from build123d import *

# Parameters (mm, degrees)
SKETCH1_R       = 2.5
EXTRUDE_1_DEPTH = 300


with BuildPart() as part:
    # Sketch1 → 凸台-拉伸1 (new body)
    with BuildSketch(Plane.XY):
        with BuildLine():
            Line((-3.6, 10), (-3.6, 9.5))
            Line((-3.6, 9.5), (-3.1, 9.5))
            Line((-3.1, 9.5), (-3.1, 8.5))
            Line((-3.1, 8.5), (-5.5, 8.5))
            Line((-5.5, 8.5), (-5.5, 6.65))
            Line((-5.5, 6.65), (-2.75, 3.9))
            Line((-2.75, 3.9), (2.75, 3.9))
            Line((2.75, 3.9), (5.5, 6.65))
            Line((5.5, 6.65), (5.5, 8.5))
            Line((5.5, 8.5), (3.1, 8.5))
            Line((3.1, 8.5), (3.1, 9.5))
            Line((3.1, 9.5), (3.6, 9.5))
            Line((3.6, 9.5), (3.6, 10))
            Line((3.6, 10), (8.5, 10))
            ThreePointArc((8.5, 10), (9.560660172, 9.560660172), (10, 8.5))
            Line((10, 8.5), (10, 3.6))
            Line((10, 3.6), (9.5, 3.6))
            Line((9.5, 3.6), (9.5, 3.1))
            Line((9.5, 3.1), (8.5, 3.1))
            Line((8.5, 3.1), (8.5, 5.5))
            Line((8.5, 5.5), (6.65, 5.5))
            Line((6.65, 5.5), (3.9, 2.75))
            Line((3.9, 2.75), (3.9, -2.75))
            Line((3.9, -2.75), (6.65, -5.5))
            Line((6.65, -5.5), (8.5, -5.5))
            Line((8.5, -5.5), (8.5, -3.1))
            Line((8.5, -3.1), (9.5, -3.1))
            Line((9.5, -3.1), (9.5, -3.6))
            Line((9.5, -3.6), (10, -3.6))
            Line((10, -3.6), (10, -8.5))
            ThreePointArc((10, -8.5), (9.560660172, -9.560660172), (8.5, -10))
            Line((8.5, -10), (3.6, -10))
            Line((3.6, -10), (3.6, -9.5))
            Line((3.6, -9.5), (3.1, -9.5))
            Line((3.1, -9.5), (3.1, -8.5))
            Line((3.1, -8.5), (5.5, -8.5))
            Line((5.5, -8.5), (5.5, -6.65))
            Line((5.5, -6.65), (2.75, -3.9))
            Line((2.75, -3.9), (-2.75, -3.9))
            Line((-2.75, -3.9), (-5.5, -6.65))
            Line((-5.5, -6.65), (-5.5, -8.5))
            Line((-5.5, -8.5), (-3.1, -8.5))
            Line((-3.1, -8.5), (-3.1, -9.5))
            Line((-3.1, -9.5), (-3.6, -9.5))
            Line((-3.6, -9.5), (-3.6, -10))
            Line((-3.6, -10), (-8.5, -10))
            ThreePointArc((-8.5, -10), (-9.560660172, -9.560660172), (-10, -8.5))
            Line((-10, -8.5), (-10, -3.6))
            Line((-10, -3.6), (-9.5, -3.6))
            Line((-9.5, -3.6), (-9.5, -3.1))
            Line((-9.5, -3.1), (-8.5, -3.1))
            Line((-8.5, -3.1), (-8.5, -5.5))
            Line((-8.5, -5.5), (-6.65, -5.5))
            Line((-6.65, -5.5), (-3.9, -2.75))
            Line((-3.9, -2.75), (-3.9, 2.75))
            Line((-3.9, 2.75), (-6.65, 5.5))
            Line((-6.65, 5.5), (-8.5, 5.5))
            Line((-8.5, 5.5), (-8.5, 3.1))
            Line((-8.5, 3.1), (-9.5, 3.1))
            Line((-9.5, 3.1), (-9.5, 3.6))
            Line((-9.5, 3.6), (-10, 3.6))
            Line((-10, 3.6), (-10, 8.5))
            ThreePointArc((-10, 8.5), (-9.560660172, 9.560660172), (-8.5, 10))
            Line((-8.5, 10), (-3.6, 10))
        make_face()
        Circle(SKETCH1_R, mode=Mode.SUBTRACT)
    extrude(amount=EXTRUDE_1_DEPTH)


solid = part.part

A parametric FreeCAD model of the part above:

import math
import FreeCAD as App
import Part
import Sketcher

V = App.Vector

doc = App.newDocument("Part")
body = doc.addObject("PartDesign::Body", "Body")

sketch1 = body.newObject("Sketcher::SketchObject", "Sketch")
sketch1.AttachmentSupport = (doc.getObject("XY_Plane"), [""])
sketch1.MapMode = "FlatFace"
sketch1.addGeometry(Part.LineSegment(V(-3.6, 9.5, 0), V(-3.6, 10, 0)), False)
sketch1.addGeometry(Part.LineSegment(V(-3.6, 10, 0), V(-8.5, 10, 0)), False)
sketch1.addGeometry(Part.ArcOfCircle(Part.Circle(V(-8.5, 8.5, 0), V(0, 0, 1), 1.5), math.radians(90), math.radians(180)), False)
sketch1.addGeometry(Part.LineSegment(V(-10, 8.5, 0), V(-10, 3.6, 0)), False)
sketch1.addGeometry(Part.LineSegment(V(-10, 3.6, 0), V(-9.5, 3.6, 0)), False)
sketch1.addGeometry(Part.LineSegment(V(-9.5, 3.6, 0), V(-9.5, 3.1, 0)), False)
sketch1.addGeometry(Part.LineSegment(V(-9.5, 3.1, 0), V(-8.5, 3.1, 0)), False)
sketch1.addGeometry(Part.LineSegment(V(-8.5, 3.1, 0), V(-8.5, 5.5, 0)), False)
sketch1.addGeometry(Part.LineSegment(V(-8.5, 5.5, 0), V(-6.7, 5.5, 0)), False)
sketch1.addGeometry(Part.LineSegment(V(-6.7, 5.5, 0), V(-3.9, 2.8, 0)), False)
sketch1.addGeometry(Part.LineSegment(V(-3.9, 2.8, 0), V(-3.9, -2.8, 0)), False)
sketch1.addGeometry(Part.LineSegment(V(-3.9, -2.8, 0), V(-6.7, -5.5, 0)), False)
sketch1.addGeometry(Part.LineSegment(V(-6.7, -5.5, 0), V(-8.5, -5.5, 0)), False)
sketch1.addGeometry(Part.LineSegment(V(-8.5, -5.5, 0), V(-8.5, -3.1, 0)), False)
sketch1.addGeometry(Part.LineSegment(V(-8.5, -3.1, 0), V(-9.5, -3.1, 0)), False)
sketch1.addGeometry(Part.LineSegment(V(-9.5, -3.1, 0), V(-9.5, -3.6, 0)), False)
sketch1.addGeometry(Part.LineSegment(V(-9.5, -3.6, 0), V(-10, -3.6, 0)), False)
sketch1.addGeometry(Part.LineSegment(V(-10, -3.6, 0), V(-10, -8.5, 0)), False)
sketch1.addGeometry(Part.ArcOfCircle(Part.Circle(V(-8.5, -8.5, 0), V(0, 0, 1), 1.5), math.radians(180), math.radians(270)), False)
sketch1.addGeometry(Part.LineSegment(V(-8.5, -10, 0), V(-3.6, -10, 0)), False)
sketch1.addGeometry(Part.LineSegment(V(-3.6, -10, 0), V(-3.6, -9.5, 0)), False)
sketch1.addGeometry(Part.LineSegment(V(-3.6, -9.5, 0), V(-3.1, -9.5, 0)), False)
sketch1.addGeometry(Part.LineSegment(V(-3.1, -9.5, 0), V(-3.1, -8.5, 0)), False)
sketch1.addGeometry(Part.LineSegment(V(-3.1, -8.5, 0), V(-5.5, -8.5, 0)), False)
sketch1.addGeometry(Part.LineSegment(V(-5.5, -8.5, 0), V(-5.5, -6.7, 0)), False)
sketch1.addGeometry(Part.LineSegment(V(-5.5, -6.7, 0), V(-2.8, -3.9, 0)), False)
sketch1.addGeometry(Part.LineSegment(V(-2.8, -3.9, 0), V(2.8, -3.9, 0)), False)
sketch1.addGeometry(Part.LineSegment(V(2.8, -3.9, 0), V(5.5, -6.7, 0)), False)
sketch1.addGeometry(Part.LineSegment(V(5.5, -6.7, 0), V(5.5, -8.5, 0)), False)
sketch1.addGeometry(Part.LineSegment(V(5.5, -8.5, 0), V(3.1, -8.5, 0)), False)
sketch1.addGeometry(Part.LineSegment(V(3.1, -8.5, 0), V(3.1, -9.5, 0)), False)
sketch1.addGeometry(Part.LineSegment(V(3.1, -9.5, 0), V(3.6, -9.5, 0)), False)
sketch1.addGeometry(Part.LineSegment(V(3.6, -9.5, 0), V(3.6, -10, 0)), False)
sketch1.addGeometry(Part.LineSegment(V(3.6, -10, 0), V(8.5, -10, 0)), False)
sketch1.addGeometry(Part.ArcOfCircle(Part.Circle(V(8.5, -8.5, 0), V(0, 0, 1), 1.5), math.radians(-90), math.radians(0)), False)
sketch1.addGeometry(Part.LineSegment(V(10, -8.5, 0), V(10, -3.6, 0)), False)
sketch1.addGeometry(Part.LineSegment(V(10, -3.6, 0), V(9.5, -3.6, 0)), False)
sketch1.addGeometry(Part.LineSegment(V(9.5, -3.6, 0), V(9.5, -3.1, 0)), False)
sketch1.addGeometry(Part.LineSegment(V(9.5, -3.1, 0), V(8.5, -3.1, 0)), False)
sketch1.addGeometry(Part.LineSegment(V(8.5, -3.1, 0), V(8.5, -5.5, 0)), False)
sketch1.addGeometry(Part.LineSegment(V(8.5, -5.5, 0), V(6.7, -5.5, 0)), False)
sketch1.addGeometry(Part.LineSegment(V(6.7, -5.5, 0), V(3.9, -2.8, 0)), False)
sketch1.addGeometry(Part.LineSegment(V(3.9, -2.8, 0), V(3.9, 2.8, 0)), False)
sketch1.addGeometry(Part.LineSegment(V(3.9, 2.8, 0), V(6.7, 5.5, 0)), False)
sketch1.addGeometry(Part.LineSegment(V(6.7, 5.5, 0), V(8.5, 5.5, 0)), False)
sketch1.addGeometry(Part.LineSegment(V(8.5, 5.5, 0), V(8.5, 3.1, 0)), False)
sketch1.addGeometry(Part.LineSegment(V(8.5, 3.1, 0), V(9.5, 3.1, 0)), False)
sketch1.addGeometry(Part.LineSegment(V(9.5, 3.1, 0), V(9.5, 3.6, 0)), False)
sketch1.addGeometry(Part.LineSegment(V(9.5, 3.6, 0), V(10, 3.6, 0)), False)
sketch1.addGeometry(Part.LineSegment(V(10, 3.6, 0), V(10, 8.5, 0)), False)
sketch1.addGeometry(Part.ArcOfCircle(Part.Circle(V(8.5, 8.5, 0), V(0, 0, 1), 1.5), math.radians(0), math.radians(90)), False)
sketch1.addGeometry(Part.LineSegment(V(8.5, 10, 0), V(3.6, 10, 0)), False)
sketch1.addGeometry(Part.LineSegment(V(3.6, 10, 0), V(3.6, 9.5, 0)), False)
sketch1.addGeometry(Part.LineSegment(V(3.6, 9.5, 0), V(3.1, 9.5, 0)), False)
sketch1.addGeometry(Part.LineSegment(V(3.1, 9.5, 0), V(3.1, 8.5, 0)), False)
sketch1.addGeometry(Part.LineSegment(V(3.1, 8.5, 0), V(5.5, 8.5, 0)), False)
sketch1.addGeometry(Part.LineSegment(V(5.5, 8.5, 0), V(5.5, 6.7, 0)), False)
sketch1.addGeometry(Part.LineSegment(V(5.5, 6.7, 0), V(2.8, 3.9, 0)), False)
sketch1.addGeometry(Part.LineSegment(V(2.8, 3.9, 0), V(-2.8, 3.9, 0)), False)
sketch1.addGeometry(Part.LineSegment(V(-2.8, 3.9, 0), V(-5.5, 6.7, 0)), False)
sketch1.addGeometry(Part.LineSegment(V(-5.5, 6.7, 0), V(-5.5, 8.5, 0)), False)
sketch1.addGeometry(Part.LineSegment(V(-5.5, 8.5, 0), V(-3.1, 8.5, 0)), False)
sketch1.addGeometry(Part.LineSegment(V(-3.1, 8.5, 0), V(-3.1, 9.5, 0)), False)
sketch1.addGeometry(Part.LineSegment(V(-3.1, 9.5, 0), V(-3.6, 9.5, 0)), False)
sketch1.addGeometry(Part.Circle(V(0, 0, 0), V(0, 0, 1), 2.5), False)
sketch1.addConstraint(Sketcher.Constraint("Coincident", 0, 2, 1, 1))
sketch1.addConstraint(Sketcher.Constraint("Tangent", 1, 2, 2, 1))
sketch1.addConstraint(Sketcher.Constraint("Tangent", 2, 2, 3, 1))
sketch1.addConstraint(Sketcher.Constraint("Coincident", 3, 2, 4, 1))
sketch1.addConstraint(Sketcher.Constraint("Coincident", 4, 2, 5, 1))
sketch1.addConstraint(Sketcher.Constraint("Coincident", 5, 2, 6, 1))
sketch1.addConstraint(Sketcher.Constraint("Coincident", 6, 2, 7, 1))
sketch1.addConstraint(Sketcher.Constraint("Coincident", 7, 2, 8, 1))
sketch1.addConstraint(Sketcher.Constraint("Coincident", 8, 2, 9, 1))
sketch1.addConstraint(Sketcher.Constraint("Coincident", 9, 2, 10, 1))
sketch1.addConstraint(Sketcher.Constraint("Coincident", 10, 2, 11, 1))
sketch1.addConstraint(Sketcher.Constraint("Coincident", 11, 2, 12, 1))
sketch1.addConstraint(Sketcher.Constraint("Coincident", 12, 2, 13, 1))
sketch1.addConstraint(Sketcher.Constraint("Coincident", 13, 2, 14, 1))
sketch1.addConstraint(Sketcher.Constraint("Coincident", 14, 2, 15, 1))
sketch1.addConstraint(Sketcher.Constraint("Coincident", 15, 2, 16, 1))
sketch1.addConstraint(Sketcher.Constraint("Coincident", 16, 2, 17, 1))
sketch1.addConstraint(Sketcher.Constraint("Tangent", 17, 2, 18, 1))
sketch1.addConstraint(Sketcher.Constraint("Tangent", 18, 2, 19, 1))
sketch1.addConstraint(Sketcher.Constraint("Coincident", 19, 2, 20, 1))
sketch1.addConstraint(Sketcher.Constraint("Coincident", 20, 2, 21, 1))
sketch1.addConstraint(Sketcher.Constraint("Coincident", 21, 2, 22, 1))
sketch1.addConstraint(Sketcher.Constraint("Coincident", 22, 2, 23, 1))
sketch1.addConstraint(Sketcher.Constraint("Coincident", 23, 2, 24, 1))
sketch1.addConstraint(Sketcher.Constraint("Coincident", 24, 2, 25, 1))
sketch1.addConstraint(Sketcher.Constraint("Coincident", 25, 2, 26, 1))
sketch1.addConstraint(Sketcher.Constraint("Coincident", 26, 2, 27, 1))
sketch1.addConstraint(Sketcher.Constraint("Coincident", 27, 2, 28, 1))
sketch1.addConstraint(Sketcher.Constraint("Coincident", 28, 2, 29, 1))
sketch1.addConstraint(Sketcher.Constraint("Coincident", 29, 2, 30, 1))
sketch1.addConstraint(Sketcher.Constraint("Coincident", 30, 2, 31, 1))
sketch1.addConstraint(Sketcher.Constraint("Coincident", 31, 2, 32, 1))
sketch1.addConstraint(Sketcher.Constraint("Coincident", 32, 2, 33, 1))
sketch1.addConstraint(Sketcher.Constraint("Tangent", 33, 2, 34, 1))
sketch1.addConstraint(Sketcher.Constraint("Tangent", 34, 2, 35, 1))
sketch1.addConstraint(Sketcher.Constraint("Coincident", 35, 2, 36, 1))
sketch1.addConstraint(Sketcher.Constraint("Coincident", 36, 2, 37, 1))
sketch1.addConstraint(Sketcher.Constraint("Coincident", 37, 2, 38, 1))
sketch1.addConstraint(Sketcher.Constraint("Coincident", 38, 2, 39, 1))
sketch1.addConstraint(Sketcher.Constraint("Coincident", 39, 2, 40, 1))
sketch1.addConstraint(Sketcher.Constraint("Coincident", 40, 2, 41, 1))
sketch1.addConstraint(Sketcher.Constraint("Coincident", 41, 2, 42, 1))
sketch1.addConstraint(Sketcher.Constraint("Coincident", 42, 2, 43, 1))
sketch1.addConstraint(Sketcher.Constraint("Coincident", 43, 2, 44, 1))
sketch1.addConstraint(Sketcher.Constraint("Coincident", 44, 2, 45, 1))
sketch1.addConstraint(Sketcher.Constraint("Coincident", 45, 2, 46, 1))
sketch1.addConstraint(Sketcher.Constraint("Coincident", 46, 2, 47, 1))
sketch1.addConstraint(Sketcher.Constraint("Coincident", 47, 2, 48, 1))
sketch1.addConstraint(Sketcher.Constraint("Coincident", 48, 2, 49, 1))
sketch1.addConstraint(Sketcher.Constraint("Tangent", 49, 2, 50, 1))
sketch1.addConstraint(Sketcher.Constraint("Tangent", 50, 2, 51, 1))
sketch1.addConstraint(Sketcher.Constraint("Coincident", 51, 2, 52, 1))
sketch1.addConstraint(Sketcher.Constraint("Coincident", 52, 2, 53, 1))
sketch1.addConstraint(Sketcher.Constraint("Coincident", 53, 2, 54, 1))
sketch1.addConstraint(Sketcher.Constraint("Coincident", 54, 2, 55, 1))
sketch1.addConstraint(Sketcher.Constraint("Coincident", 55, 2, 56, 1))
sketch1.addConstraint(Sketcher.Constraint("Coincident", 56, 2, 57, 1))
sketch1.addConstraint(Sketcher.Constraint("Coincident", 57, 2, 58, 1))
sketch1.addConstraint(Sketcher.Constraint("Coincident", 58, 2, 59, 1))
sketch1.addConstraint(Sketcher.Constraint("Coincident", 59, 2, 60, 1))
sketch1.addConstraint(Sketcher.Constraint("Coincident", 60, 2, 61, 1))
sketch1.addConstraint(Sketcher.Constraint("Coincident", 61, 2, 62, 1))
sketch1.addConstraint(Sketcher.Constraint("Coincident", 62, 2, 63, 1))
sketch1.addConstraint(Sketcher.Constraint("Coincident", 63, 2, 0, 1))
sketch1.addConstraint(Sketcher.Constraint("Vertical", 0))
sketch1.addConstraint(Sketcher.Constraint("Horizontal", 1))
sketch1.addConstraint(Sketcher.Constraint("Vertical", 3))
sketch1.addConstraint(Sketcher.Constraint("Horizontal", 4))
sketch1.addConstraint(Sketcher.Constraint("Vertical", 5))
sketch1.addConstraint(Sketcher.Constraint("Horizontal", 6))
sketch1.addConstraint(Sketcher.Constraint("Vertical", 7))
sketch1.addConstraint(Sketcher.Constraint("Horizontal", 8))
sketch1.addConstraint(Sketcher.Constraint("Vertical", 10))
sketch1.addConstraint(Sketcher.Constraint("Horizontal", 12))
sketch1.addConstraint(Sketcher.Constraint("Vertical", 13))
sketch1.addConstraint(Sketcher.Constraint("Horizontal", 14))
sketch1.addConstraint(Sketcher.Constraint("Vertical", 15))
sketch1.addConstraint(Sketcher.Constraint("Horizontal", 16))
sketch1.addConstraint(Sketcher.Constraint("Vertical", 17))
sketch1.addConstraint(Sketcher.Constraint("Horizontal", 19))
sketch1.addConstraint(Sketcher.Constraint("Vertical", 20))
sketch1.addConstraint(Sketcher.Constraint("Horizontal", 21))
sketch1.addConstraint(Sketcher.Constraint("Vertical", 22))
sketch1.addConstraint(Sketcher.Constraint("Horizontal", 23))
sketch1.addConstraint(Sketcher.Constraint("Vertical", 24))
sketch1.addConstraint(Sketcher.Constraint("Horizontal", 26))
sketch1.addConstraint(Sketcher.Constraint("Vertical", 28))
sketch1.addConstraint(Sketcher.Constraint("Horizontal", 29))
sketch1.addConstraint(Sketcher.Constraint("Vertical", 30))
sketch1.addConstraint(Sketcher.Constraint("Horizontal", 31))
sketch1.addConstraint(Sketcher.Constraint("Vertical", 32))
sketch1.addConstraint(Sketcher.Constraint("Horizontal", 33))
sketch1.addConstraint(Sketcher.Constraint("Vertical", 35))
sketch1.addConstraint(Sketcher.Constraint("Horizontal", 36))
sketch1.addConstraint(Sketcher.Constraint("Vertical", 37))
sketch1.addConstraint(Sketcher.Constraint("Horizontal", 38))
sketch1.addConstraint(Sketcher.Constraint("Vertical", 39))
sketch1.addConstraint(Sketcher.Constraint("Horizontal", 40))
sketch1.addConstraint(Sketcher.Constraint("Vertical", 42))
sketch1.addConstraint(Sketcher.Constraint("Horizontal", 44))
sketch1.addConstraint(Sketcher.Constraint("Vertical", 45))
sketch1.addConstraint(Sketcher.Constraint("Horizontal", 46))
sketch1.addConstraint(Sketcher.Constraint("Vertical", 47))
sketch1.addConstraint(Sketcher.Constraint("Horizontal", 48))
sketch1.addConstraint(Sketcher.Constraint("Vertical", 49))
sketch1.addConstraint(Sketcher.Constraint("Horizontal", 51))
sketch1.addConstraint(Sketcher.Constraint("Vertical", 52))
sketch1.addConstraint(Sketcher.Constraint("Horizontal", 53))
sketch1.addConstraint(Sketcher.Constraint("Vertical", 54))
sketch1.addConstraint(Sketcher.Constraint("Horizontal", 55))
sketch1.addConstraint(Sketcher.Constraint("Vertical", 56))
sketch1.addConstraint(Sketcher.Constraint("Horizontal", 58))
sketch1.addConstraint(Sketcher.Constraint("Vertical", 60))
sketch1.addConstraint(Sketcher.Constraint("Horizontal", 61))
sketch1.addConstraint(Sketcher.Constraint("Vertical", 62))
sketch1.addConstraint(Sketcher.Constraint("Horizontal", 63))
sketch1.addConstraint(Sketcher.Constraint("Coincident", 64, 3, -1, 1))
sketch1.addConstraint(Sketcher.Constraint("Equal", 2, 18))
sketch1.addConstraint(Sketcher.Constraint("Equal", 18, 34))
sketch1.addConstraint(Sketcher.Constraint("Equal", 34, 50))
sketch1.addConstraint(Sketcher.Constraint("Symmetric", 2, 3, 34, 3, -1, 1))
sketch1.addConstraint(Sketcher.Constraint("Symmetric", 18, 3, 50, 3, -1, 1))
sketch1.addConstraint(Sketcher.Constraint("Symmetric", 4, 2, 36, 2, -1, 1))
sketch1.addConstraint(Sketcher.Constraint("Symmetric", 6, 2, 38, 2, -1, 1))
sketch1.addConstraint(Sketcher.Constraint("Symmetric", 8, 2, 40, 2, -1, 1))
sketch1.addConstraint(Sketcher.Constraint("Symmetric", 9, 2, 41, 2, -1, 1))
sketch1.addConstraint(Sketcher.Constraint("Symmetric", 11, 2, 43, 2, -1, 1))
sketch1.addConstraint(Sketcher.Constraint("Symmetric", 13, 2, 45, 2, -1, 1))
sketch1.addConstraint(Sketcher.Constraint("Symmetric", 15, 2, 47, 2, -1, 1))
sketch1.addConstraint(Sketcher.Constraint("Symmetric", 20, 2, 52, 2, -1, 1))
sketch1.addConstraint(Sketcher.Constraint("Symmetric", 22, 2, 54, 2, -1, 1))
sketch1.addConstraint(Sketcher.Constraint("Symmetric", 24, 2, 56, 2, -1, 1))
sketch1.addConstraint(Sketcher.Constraint("Symmetric", 25, 2, 57, 2, -1, 1))
sketch1.addConstraint(Sketcher.Constraint("Symmetric", 27, 2, 59, 2, -1, 1))
sketch1.addConstraint(Sketcher.Constraint("Symmetric", 29, 2, 61, 2, -1, 1))
sketch1.addConstraint(Sketcher.Constraint("Symmetric", 31, 2, 63, 2, -1, 1))
sketch1.addConstraint(Sketcher.Constraint("Symmetric", 18, 3, 34, 3, -2))
sketch1.addConstraint(Sketcher.Constraint("Symmetric", 24, 2, 27, 2, -2))
sketch1.addConstraint(Sketcher.Constraint("Symmetric", 22, 2, 29, 2, -2))
sketch1.addConstraint(Sketcher.Constraint("Symmetric", 20, 2, 31, 2, -2))
sketch1.addConstraint(Sketcher.Constraint("Symmetric", 15, 2, 36, 2, -2))
sketch1.addConstraint(Sketcher.Constraint("Symmetric", 13, 2, 38, 2, -2))
sketch1.addConstraint(Sketcher.Constraint("Symmetric", 11, 2, 40, 2, -2))
sketch1.addConstraint(Sketcher.Constraint("Perpendicular", 9, 11))
sketch1.addConstraint(Sketcher.Constraint("Parallel", 11, 25))
sketch1.addConstraint(Sketcher.Constraint("Perpendicular", 25, 27))
sketch1.addConstraint(Sketcher.Constraint("Perpendicular", 41, 43))
sketch1.addConstraint(Sketcher.Constraint("Perpendicular", 57, 59))
sketch1.addConstraint(Sketcher.Constraint("Horizontal", 17, 2, 22, 2))
sketch1.addConstraint(Sketcher.Constraint("Horizontal", 10, 2, 41, 2))
sketch1.addConstraint(Sketcher.Constraint("Vertical", 1, 2, 6, 2))
sketch1.addConstraint(Sketcher.Constraint("Equal", 16, 21))
sketch1.addConstraint(Sketcher.Constraint("Equal", 63, 0))
sketch1.addConstraint(Sketcher.Constraint("Equal", 51, 3))
sketch1.addConstraint(Sketcher.Constraint("Equal", 0, 5))
sketch1.addConstraint(Sketcher.Constraint("Equal", 61, 7))
sketch1.addConstraint(Sketcher.Constraint("Equal", 58, 10))
sketch1.addConstraint(Sketcher.Constraint("Equal", 44, 24))
sketch1.addConstraint(Sketcher.Constraint("Equal", 11, 25))
sketch1.addConstraint(Sketcher.Constraint("Diameter", 64, 5.0))
sketch1.addConstraint(Sketcher.Constraint("Radius", 2, 1.5))
sketch1.addConstraint(Sketcher.Constraint("DistanceX", 6, 1, 6, 2, 1.0))
sketch1.addConstraint(Sketcher.Constraint("DistanceX", 1, 2, 1, 1, 4.9))
sketch1.addConstraint(Sketcher.Constraint("DistanceX", 23, 2, 23, 1, 2.4))
sketch1.addConstraint(Sketcher.Constraint("DistanceX", 26, 1, 26, 2, 5.5))
sketch1.addConstraint(Sketcher.Constraint("DistanceY", -1, 1, 0, 2, 10.0))
sketch1.addConstraint(Sketcher.Constraint("DistanceX", 8, 1, 8, 2, 1.85))
pad1 = body.newObject("PartDesign::Pad", "Pad")
pad1.Profile = sketch1
pad1.Length = 300

doc.recompute()
